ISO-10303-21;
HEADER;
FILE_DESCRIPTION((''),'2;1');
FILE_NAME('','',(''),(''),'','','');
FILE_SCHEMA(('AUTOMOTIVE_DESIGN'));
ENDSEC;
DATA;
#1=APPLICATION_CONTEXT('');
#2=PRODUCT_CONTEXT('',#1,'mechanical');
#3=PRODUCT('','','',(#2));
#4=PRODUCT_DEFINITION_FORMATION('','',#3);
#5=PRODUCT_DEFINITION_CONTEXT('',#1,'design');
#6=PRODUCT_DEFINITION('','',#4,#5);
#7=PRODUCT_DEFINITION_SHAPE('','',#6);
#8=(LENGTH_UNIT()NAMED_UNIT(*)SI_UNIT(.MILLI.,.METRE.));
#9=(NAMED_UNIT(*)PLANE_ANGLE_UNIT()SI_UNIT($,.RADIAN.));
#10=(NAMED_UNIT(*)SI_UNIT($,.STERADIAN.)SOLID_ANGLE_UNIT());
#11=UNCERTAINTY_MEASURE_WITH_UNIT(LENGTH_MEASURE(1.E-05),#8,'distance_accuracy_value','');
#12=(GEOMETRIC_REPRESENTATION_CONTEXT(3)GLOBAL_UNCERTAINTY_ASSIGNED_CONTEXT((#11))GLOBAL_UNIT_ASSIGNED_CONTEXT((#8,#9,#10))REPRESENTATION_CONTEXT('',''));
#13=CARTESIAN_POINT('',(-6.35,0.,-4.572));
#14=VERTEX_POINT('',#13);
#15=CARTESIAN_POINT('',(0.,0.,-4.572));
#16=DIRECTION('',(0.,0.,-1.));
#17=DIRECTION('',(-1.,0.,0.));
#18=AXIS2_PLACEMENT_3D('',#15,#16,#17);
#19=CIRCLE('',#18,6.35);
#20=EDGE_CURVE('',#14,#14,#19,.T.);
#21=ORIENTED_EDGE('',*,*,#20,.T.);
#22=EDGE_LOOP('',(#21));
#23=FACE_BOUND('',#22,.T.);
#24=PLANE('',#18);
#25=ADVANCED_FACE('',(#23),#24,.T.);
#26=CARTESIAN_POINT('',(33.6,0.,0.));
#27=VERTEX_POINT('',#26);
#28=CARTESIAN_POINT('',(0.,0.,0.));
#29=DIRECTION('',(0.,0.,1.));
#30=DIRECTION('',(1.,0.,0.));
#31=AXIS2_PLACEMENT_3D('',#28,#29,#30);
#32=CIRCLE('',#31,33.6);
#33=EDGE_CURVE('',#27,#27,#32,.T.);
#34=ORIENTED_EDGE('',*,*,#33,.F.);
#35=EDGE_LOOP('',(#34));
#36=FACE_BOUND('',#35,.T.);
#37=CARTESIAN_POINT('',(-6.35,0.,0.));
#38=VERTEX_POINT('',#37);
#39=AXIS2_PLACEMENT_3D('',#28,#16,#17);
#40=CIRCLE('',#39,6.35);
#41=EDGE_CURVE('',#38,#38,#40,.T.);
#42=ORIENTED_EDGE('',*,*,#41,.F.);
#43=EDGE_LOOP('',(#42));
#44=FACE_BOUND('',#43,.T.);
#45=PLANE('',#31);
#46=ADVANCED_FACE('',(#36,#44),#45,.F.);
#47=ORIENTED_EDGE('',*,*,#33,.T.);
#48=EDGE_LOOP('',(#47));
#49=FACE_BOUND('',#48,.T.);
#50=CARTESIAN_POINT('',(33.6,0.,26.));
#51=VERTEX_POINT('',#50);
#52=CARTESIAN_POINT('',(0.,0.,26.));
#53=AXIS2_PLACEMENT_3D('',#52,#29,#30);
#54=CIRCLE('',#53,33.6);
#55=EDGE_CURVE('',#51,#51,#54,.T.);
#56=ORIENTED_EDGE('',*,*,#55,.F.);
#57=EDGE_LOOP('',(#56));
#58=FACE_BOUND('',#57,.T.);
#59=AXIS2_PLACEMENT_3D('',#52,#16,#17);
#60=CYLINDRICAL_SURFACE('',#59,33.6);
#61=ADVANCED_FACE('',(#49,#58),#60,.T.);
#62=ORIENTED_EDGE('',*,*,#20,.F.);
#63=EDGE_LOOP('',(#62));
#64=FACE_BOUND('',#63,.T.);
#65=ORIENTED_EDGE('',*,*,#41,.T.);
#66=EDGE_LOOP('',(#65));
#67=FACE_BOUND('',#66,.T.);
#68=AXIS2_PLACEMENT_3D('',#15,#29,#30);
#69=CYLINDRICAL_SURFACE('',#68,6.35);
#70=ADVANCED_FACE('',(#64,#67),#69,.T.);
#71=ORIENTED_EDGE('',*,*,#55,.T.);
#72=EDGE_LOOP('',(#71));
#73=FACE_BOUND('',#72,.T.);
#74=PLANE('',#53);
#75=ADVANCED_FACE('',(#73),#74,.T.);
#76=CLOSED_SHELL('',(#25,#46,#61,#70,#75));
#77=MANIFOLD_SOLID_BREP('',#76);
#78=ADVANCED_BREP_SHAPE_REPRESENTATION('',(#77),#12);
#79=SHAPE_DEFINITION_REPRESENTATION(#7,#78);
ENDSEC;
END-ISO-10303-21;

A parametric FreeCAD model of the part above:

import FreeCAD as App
import Part
import Sketcher

V = App.Vector
Q = App.Units.Quantity

doc = App.newDocument("Part")
body = doc.addObject("PartDesign::Body", "Body")

# Sketch on XY plane
sketch1 = body.newObject("Sketcher::SketchObject", "Sketch")
sketch1.AttachmentSupport = (doc.getObject("XY_Plane"), [""])
sketch1.MapMode = "FlatFace"
sketch1.addGeometry(Part.Circle(V(0, 0, 0), V(0, 0, 1), 33.6), False)
sketch1.addConstraint(Sketcher.Constraint("Coincident", 0, 3, -1, 1))
sketch1.addConstraint(Sketcher.Constraint("Diameter", 0, Q("67.2 mm")))
pad1 = body.newObject("PartDesign::Pad", "Pad")
pad1.Profile = sketch1
pad1.Length = 26

# Sketch on XY plane
sketch2 = body.newObject("Sketcher::SketchObject", "Sketch001")
sketch2.AttachmentSupport = (doc.getObject("XY_Plane"), [""])
sketch2.MapMode = "FlatFace"
sketch2.addGeometry(Part.Circle(V(0, 0, 0), V(0, 0, 1), 6.35), False)
sketch2.addConstraint(Sketcher.Constraint("Coincident", 0, 3, -1, 1))
sketch2.addConstraint(Sketcher.Constraint("Diameter", 0, Q("12.7 mm")))
pad2 = body.newObject("PartDesign::Pad", "Pad001")
pad2.Profile = sketch2
pad2.Length = 4.572
pad2.Reversed = True

doc.recompute()
